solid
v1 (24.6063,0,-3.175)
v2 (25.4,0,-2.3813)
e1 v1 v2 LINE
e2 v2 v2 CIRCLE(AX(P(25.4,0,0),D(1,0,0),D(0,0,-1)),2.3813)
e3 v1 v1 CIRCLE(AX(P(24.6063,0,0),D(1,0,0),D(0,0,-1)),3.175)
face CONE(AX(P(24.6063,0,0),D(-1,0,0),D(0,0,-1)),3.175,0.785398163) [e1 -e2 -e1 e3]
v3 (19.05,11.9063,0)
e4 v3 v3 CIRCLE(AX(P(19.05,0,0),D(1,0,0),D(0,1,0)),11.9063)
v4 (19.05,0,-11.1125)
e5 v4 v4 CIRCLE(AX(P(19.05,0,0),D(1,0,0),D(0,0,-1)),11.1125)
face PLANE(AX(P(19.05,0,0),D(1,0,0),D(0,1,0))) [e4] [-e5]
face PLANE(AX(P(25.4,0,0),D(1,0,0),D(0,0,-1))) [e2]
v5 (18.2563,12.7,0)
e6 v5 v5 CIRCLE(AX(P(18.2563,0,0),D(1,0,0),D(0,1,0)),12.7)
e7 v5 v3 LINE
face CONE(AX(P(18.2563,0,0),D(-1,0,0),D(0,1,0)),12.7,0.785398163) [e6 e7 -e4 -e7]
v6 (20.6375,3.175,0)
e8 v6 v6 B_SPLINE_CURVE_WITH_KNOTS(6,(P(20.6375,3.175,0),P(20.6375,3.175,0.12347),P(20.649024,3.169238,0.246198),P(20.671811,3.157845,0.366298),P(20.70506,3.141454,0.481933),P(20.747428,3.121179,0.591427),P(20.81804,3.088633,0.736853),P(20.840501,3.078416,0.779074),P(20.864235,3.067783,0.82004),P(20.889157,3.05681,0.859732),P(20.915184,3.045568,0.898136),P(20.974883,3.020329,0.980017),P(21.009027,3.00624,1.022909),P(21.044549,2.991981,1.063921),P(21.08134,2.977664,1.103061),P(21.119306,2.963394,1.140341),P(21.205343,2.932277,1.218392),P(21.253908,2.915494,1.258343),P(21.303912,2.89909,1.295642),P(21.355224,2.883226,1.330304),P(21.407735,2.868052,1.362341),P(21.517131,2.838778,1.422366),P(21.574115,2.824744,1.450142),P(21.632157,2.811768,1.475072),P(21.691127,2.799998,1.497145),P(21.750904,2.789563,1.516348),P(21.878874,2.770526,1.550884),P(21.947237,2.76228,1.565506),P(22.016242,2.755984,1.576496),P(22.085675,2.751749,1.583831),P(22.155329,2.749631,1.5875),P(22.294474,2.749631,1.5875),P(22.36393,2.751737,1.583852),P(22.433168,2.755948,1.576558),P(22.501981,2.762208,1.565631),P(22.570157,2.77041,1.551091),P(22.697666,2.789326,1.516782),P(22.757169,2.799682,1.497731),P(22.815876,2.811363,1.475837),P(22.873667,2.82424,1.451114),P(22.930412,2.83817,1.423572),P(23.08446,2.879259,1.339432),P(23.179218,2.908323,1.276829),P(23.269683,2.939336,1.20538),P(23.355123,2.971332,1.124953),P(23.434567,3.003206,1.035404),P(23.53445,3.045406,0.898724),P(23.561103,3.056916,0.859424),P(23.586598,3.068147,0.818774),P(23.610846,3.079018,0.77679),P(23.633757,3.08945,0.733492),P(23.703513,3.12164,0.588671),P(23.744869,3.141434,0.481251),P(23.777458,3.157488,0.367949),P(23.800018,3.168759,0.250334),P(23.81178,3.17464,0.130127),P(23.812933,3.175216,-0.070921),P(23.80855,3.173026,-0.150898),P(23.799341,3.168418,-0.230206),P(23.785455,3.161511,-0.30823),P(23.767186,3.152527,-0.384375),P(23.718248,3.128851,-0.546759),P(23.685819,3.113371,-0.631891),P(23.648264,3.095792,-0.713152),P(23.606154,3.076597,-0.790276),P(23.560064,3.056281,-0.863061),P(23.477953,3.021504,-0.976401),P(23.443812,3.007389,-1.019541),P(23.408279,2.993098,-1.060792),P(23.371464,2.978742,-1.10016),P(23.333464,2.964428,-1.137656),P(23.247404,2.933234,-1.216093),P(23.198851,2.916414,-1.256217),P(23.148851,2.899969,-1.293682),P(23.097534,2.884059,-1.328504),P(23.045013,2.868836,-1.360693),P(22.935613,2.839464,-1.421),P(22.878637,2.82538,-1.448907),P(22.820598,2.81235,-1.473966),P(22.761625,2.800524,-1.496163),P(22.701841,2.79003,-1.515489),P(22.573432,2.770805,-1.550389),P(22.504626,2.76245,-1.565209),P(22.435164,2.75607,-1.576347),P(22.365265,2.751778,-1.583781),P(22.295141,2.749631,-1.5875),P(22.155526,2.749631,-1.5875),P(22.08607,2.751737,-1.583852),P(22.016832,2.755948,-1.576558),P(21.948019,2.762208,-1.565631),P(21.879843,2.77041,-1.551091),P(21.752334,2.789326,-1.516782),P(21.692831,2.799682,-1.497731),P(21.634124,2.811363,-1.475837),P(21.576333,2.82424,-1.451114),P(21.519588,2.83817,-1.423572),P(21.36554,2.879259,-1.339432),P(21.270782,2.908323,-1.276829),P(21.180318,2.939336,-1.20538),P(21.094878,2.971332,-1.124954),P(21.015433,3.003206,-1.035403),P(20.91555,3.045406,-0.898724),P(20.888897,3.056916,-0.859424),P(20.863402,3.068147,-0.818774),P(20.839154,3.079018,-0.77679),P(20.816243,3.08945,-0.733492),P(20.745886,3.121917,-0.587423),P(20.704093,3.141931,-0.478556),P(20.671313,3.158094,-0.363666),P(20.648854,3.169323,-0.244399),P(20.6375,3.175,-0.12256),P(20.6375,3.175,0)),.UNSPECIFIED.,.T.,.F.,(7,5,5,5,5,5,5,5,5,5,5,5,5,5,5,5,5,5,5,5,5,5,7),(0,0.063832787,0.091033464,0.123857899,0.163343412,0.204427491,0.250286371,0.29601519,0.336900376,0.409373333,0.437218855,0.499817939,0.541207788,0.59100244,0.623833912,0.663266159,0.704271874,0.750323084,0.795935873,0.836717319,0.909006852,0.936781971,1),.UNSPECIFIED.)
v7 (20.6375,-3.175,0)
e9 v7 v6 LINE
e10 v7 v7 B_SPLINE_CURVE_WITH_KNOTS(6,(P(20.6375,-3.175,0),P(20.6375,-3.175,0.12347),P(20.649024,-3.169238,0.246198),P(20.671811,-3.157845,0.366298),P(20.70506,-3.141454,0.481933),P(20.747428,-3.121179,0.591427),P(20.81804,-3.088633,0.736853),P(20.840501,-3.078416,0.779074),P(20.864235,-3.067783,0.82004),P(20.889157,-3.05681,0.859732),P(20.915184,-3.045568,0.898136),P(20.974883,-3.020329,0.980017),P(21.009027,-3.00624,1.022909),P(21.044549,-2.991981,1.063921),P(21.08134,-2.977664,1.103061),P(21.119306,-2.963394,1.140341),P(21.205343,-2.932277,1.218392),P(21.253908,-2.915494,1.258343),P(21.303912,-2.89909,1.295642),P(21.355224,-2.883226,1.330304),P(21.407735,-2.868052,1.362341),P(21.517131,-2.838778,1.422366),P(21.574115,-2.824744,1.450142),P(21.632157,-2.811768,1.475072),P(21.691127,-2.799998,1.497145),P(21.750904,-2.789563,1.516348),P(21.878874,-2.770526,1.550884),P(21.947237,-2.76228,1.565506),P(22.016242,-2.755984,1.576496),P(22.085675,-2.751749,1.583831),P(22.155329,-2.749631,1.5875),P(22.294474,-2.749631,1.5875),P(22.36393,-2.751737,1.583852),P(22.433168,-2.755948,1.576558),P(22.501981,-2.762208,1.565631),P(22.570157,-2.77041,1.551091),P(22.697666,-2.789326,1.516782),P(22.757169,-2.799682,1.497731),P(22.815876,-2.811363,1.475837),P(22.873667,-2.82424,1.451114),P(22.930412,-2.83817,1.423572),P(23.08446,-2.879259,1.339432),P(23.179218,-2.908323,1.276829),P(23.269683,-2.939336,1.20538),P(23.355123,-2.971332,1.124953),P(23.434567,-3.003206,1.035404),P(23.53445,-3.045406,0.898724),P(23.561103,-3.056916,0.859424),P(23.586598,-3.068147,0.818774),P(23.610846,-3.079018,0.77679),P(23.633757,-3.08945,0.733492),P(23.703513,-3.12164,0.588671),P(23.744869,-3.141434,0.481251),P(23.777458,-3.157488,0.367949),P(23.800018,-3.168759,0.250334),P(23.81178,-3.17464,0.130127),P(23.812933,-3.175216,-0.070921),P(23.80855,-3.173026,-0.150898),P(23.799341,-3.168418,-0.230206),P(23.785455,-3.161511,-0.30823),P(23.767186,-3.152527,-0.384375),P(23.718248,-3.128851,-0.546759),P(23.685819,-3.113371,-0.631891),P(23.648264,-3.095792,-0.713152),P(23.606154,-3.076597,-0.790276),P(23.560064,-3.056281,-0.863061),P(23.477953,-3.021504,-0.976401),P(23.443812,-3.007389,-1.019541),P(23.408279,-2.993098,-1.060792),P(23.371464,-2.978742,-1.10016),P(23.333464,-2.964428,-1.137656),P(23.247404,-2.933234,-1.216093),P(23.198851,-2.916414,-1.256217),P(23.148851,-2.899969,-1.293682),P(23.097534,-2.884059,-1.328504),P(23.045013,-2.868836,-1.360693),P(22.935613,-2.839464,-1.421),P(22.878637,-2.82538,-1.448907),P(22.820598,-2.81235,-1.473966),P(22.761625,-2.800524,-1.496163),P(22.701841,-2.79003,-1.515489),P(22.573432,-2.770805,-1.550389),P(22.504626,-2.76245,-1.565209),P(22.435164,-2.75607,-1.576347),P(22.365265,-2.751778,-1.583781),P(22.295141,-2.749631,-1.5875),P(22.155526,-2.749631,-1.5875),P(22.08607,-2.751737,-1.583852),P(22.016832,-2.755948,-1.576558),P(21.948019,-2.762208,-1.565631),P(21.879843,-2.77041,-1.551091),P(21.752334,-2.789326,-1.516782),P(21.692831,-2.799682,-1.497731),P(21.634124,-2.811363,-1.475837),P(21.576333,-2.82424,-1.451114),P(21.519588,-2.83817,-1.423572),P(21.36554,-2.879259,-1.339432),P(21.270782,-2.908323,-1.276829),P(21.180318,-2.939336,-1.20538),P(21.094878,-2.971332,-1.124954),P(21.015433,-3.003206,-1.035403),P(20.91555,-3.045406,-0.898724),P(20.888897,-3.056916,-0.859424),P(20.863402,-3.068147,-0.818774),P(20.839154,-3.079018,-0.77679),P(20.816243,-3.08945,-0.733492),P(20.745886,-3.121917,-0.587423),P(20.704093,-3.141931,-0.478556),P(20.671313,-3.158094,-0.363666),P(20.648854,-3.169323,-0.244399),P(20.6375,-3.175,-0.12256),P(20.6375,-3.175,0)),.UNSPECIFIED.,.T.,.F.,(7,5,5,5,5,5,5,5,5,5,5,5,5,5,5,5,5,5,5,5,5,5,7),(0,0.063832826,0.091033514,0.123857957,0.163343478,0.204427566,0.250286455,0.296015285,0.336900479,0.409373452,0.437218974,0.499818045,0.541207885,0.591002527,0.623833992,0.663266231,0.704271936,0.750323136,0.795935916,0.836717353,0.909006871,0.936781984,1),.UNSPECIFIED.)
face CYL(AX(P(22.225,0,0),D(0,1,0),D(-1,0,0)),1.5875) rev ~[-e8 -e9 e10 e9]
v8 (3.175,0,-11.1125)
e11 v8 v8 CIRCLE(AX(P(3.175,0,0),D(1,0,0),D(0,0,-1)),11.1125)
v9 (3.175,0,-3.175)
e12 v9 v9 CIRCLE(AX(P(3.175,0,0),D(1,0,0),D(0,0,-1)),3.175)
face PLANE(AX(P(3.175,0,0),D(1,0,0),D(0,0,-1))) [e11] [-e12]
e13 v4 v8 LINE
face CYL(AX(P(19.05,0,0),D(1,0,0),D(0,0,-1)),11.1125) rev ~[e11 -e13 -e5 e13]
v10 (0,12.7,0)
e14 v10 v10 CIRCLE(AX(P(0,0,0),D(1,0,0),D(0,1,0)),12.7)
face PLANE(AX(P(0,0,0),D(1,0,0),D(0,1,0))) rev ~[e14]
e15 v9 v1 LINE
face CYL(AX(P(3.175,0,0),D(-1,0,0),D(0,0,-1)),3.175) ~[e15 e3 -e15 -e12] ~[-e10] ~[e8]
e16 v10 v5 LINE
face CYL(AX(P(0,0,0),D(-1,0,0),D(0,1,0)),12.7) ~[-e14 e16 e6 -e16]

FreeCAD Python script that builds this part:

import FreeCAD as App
import Part
import Sketcher
Q = App.Units.Quantity


def edges_at(feature, points):
    """Names of the edges that pass closest to the given points."""
    edges = feature.Shape.Edges
    near = lambda p: min(range(len(edges)), key=lambda i: edges[i].distToShape(Part.Vertex(*p))[0])
    return sorted({f"Edge{near(p) + 1}" for p in points})

doc = App.newDocument("Part")
params = doc.addObject("Spreadsheet::Sheet", "Params")
for row, (alias, value) in enumerate([
    ("sketch1_diameter", "1 in"),
    ("pad1_length", "0.75 in"),
    ("sketch2_diameter", "0.875 in"),
    ("pocket1_length", "0.625 in"),
    ("sketch3_diameter", "0.25 in"),
    ("pad2_length", "0.875 in"),
    ("sketch4_diameter", "0.125 in"),
    ("pocket2_length", "0.875 in"),
    ("chamfer_size", "0.031248 in"),
], start=1):
    params.set(f"A{row}", alias)
    params.set(f"B{row}", "=" + value)
    params.setAlias(f"B{row}", alias)

body = doc.addObject("PartDesign::Body", "Body")

sketch1 = body.newObject("Sketcher::SketchObject", "Sketch")
sketch1.AttachmentSupport = (doc.getObject("YZ_Plane"), [""])
sketch1.MapMode = "FlatFace"
sketch1.addGeometry(Part.Circle(App.Vector(0, 0, 0), App.Vector(0, 0, 1), 12.7), False)
sketch1.addConstraint(Sketcher.Constraint("Coincident", 0, 3, -1, 1))
sketch1.addConstraint(Sketcher.Constraint("Diameter", 0, Q("1 in")))
sketch1.setExpression("Constraints[1]", "Params.sketch1_diameter")
pad1 = body.newObject("PartDesign::Pad", "Pad")
pad1.Profile = sketch1
pad1.setExpression("Length", "Params.pad1_length")

sketch2 = body.newObject("Sketcher::SketchObject", "Sketch001")
sketch2.AttachmentSupport = (doc.getObject("YZ_Plane"), [""])
sketch2.MapMode = "FlatFace"
sketch2.AttachmentOffset = App.Placement(App.Vector(0, 0, 0.75 * 25.4), App.Rotation())
sketch2.addGeometry(Part.Circle(App.Vector(0, 0, 0), App.Vector(0, 0, 1), 11.1125), False)
sketch2.addConstraint(Sketcher.Constraint("Coincident", 0, 3, -1, 1))
sketch2.addConstraint(Sketcher.Constraint("Diameter", 0, Q("0.875 in")))
sketch2.setExpression("Constraints[1]", "Params.sketch2_diameter")
pocket1 = body.newObject("PartDesign::Pocket", "Pocket")
pocket1.Profile = sketch2
pocket1.setExpression("Length", "Params.pocket1_length")

sketch3 = body.newObject("Sketcher::SketchObject", "Sketch002")
sketch3.AttachmentSupport = (doc.getObject("YZ_Plane"), [""])
sketch3.MapMode = "FlatFace"
sketch3.AttachmentOffset = App.Placement(App.Vector(0, 0, 0.125 * 25.4), App.Rotation())
sketch3.addGeometry(Part.Circle(App.Vector(0, 0, 0), App.Vector(0, 0, 1), 3.175), False)
sketch3.addConstraint(Sketcher.Constraint("Coincident", 0, 3, -1, 1))
sketch3.addConstraint(Sketcher.Constraint("Diameter", 0, Q("0.25 in")))
sketch3.setExpression("Constraints[1]", "Params.sketch3_diameter")
pad2 = body.newObject("PartDesign::Pad", "Pad001")
pad2.Profile = sketch3
pad2.setExpression("Length", "Params.pad2_length")

sketch4 = body.newObject("Sketcher::SketchObject", "Sketch003")
sketch4.AttachmentSupport = (doc.getObject("XZ_Plane"), [""])
sketch4.MapMode = "FlatFace"
sketch4.addGeometry(Part.Circle(App.Vector(22.225, 0, 0), App.Vector(0, 0, 1), 1.5875), False)
sketch4.addConstraint(Sketcher.Constraint("PointOnObject", 0, 3, -1))
sketch4.addConstraint(Sketcher.Constraint("Diameter", 0, Q("0.125 in")))
sketch4.addConstraint(Sketcher.Constraint("DistanceX", -1, 1, 0, 3, Q("0.875 in")))
sketch4.setExpression("Constraints[1]", "Params.sketch4_diameter")
pocket2 = body.newObject("PartDesign::Pocket", "Pocket001")
pocket2.Profile = sketch4
pocket2.setExpression("Length", "Params.pocket2_length")
pocket2.Midplane = True
doc.recompute()

chamfer = body.newObject("PartDesign::Chamfer", "Chamfer")
chamfer.Base = (pocket2, edges_at(pocket2, [(19.05, -12.7, 0), (25.4, 0, 3.175)]))
chamfer.setExpression("Size", "Params.chamfer_size")

doc.recompute()
